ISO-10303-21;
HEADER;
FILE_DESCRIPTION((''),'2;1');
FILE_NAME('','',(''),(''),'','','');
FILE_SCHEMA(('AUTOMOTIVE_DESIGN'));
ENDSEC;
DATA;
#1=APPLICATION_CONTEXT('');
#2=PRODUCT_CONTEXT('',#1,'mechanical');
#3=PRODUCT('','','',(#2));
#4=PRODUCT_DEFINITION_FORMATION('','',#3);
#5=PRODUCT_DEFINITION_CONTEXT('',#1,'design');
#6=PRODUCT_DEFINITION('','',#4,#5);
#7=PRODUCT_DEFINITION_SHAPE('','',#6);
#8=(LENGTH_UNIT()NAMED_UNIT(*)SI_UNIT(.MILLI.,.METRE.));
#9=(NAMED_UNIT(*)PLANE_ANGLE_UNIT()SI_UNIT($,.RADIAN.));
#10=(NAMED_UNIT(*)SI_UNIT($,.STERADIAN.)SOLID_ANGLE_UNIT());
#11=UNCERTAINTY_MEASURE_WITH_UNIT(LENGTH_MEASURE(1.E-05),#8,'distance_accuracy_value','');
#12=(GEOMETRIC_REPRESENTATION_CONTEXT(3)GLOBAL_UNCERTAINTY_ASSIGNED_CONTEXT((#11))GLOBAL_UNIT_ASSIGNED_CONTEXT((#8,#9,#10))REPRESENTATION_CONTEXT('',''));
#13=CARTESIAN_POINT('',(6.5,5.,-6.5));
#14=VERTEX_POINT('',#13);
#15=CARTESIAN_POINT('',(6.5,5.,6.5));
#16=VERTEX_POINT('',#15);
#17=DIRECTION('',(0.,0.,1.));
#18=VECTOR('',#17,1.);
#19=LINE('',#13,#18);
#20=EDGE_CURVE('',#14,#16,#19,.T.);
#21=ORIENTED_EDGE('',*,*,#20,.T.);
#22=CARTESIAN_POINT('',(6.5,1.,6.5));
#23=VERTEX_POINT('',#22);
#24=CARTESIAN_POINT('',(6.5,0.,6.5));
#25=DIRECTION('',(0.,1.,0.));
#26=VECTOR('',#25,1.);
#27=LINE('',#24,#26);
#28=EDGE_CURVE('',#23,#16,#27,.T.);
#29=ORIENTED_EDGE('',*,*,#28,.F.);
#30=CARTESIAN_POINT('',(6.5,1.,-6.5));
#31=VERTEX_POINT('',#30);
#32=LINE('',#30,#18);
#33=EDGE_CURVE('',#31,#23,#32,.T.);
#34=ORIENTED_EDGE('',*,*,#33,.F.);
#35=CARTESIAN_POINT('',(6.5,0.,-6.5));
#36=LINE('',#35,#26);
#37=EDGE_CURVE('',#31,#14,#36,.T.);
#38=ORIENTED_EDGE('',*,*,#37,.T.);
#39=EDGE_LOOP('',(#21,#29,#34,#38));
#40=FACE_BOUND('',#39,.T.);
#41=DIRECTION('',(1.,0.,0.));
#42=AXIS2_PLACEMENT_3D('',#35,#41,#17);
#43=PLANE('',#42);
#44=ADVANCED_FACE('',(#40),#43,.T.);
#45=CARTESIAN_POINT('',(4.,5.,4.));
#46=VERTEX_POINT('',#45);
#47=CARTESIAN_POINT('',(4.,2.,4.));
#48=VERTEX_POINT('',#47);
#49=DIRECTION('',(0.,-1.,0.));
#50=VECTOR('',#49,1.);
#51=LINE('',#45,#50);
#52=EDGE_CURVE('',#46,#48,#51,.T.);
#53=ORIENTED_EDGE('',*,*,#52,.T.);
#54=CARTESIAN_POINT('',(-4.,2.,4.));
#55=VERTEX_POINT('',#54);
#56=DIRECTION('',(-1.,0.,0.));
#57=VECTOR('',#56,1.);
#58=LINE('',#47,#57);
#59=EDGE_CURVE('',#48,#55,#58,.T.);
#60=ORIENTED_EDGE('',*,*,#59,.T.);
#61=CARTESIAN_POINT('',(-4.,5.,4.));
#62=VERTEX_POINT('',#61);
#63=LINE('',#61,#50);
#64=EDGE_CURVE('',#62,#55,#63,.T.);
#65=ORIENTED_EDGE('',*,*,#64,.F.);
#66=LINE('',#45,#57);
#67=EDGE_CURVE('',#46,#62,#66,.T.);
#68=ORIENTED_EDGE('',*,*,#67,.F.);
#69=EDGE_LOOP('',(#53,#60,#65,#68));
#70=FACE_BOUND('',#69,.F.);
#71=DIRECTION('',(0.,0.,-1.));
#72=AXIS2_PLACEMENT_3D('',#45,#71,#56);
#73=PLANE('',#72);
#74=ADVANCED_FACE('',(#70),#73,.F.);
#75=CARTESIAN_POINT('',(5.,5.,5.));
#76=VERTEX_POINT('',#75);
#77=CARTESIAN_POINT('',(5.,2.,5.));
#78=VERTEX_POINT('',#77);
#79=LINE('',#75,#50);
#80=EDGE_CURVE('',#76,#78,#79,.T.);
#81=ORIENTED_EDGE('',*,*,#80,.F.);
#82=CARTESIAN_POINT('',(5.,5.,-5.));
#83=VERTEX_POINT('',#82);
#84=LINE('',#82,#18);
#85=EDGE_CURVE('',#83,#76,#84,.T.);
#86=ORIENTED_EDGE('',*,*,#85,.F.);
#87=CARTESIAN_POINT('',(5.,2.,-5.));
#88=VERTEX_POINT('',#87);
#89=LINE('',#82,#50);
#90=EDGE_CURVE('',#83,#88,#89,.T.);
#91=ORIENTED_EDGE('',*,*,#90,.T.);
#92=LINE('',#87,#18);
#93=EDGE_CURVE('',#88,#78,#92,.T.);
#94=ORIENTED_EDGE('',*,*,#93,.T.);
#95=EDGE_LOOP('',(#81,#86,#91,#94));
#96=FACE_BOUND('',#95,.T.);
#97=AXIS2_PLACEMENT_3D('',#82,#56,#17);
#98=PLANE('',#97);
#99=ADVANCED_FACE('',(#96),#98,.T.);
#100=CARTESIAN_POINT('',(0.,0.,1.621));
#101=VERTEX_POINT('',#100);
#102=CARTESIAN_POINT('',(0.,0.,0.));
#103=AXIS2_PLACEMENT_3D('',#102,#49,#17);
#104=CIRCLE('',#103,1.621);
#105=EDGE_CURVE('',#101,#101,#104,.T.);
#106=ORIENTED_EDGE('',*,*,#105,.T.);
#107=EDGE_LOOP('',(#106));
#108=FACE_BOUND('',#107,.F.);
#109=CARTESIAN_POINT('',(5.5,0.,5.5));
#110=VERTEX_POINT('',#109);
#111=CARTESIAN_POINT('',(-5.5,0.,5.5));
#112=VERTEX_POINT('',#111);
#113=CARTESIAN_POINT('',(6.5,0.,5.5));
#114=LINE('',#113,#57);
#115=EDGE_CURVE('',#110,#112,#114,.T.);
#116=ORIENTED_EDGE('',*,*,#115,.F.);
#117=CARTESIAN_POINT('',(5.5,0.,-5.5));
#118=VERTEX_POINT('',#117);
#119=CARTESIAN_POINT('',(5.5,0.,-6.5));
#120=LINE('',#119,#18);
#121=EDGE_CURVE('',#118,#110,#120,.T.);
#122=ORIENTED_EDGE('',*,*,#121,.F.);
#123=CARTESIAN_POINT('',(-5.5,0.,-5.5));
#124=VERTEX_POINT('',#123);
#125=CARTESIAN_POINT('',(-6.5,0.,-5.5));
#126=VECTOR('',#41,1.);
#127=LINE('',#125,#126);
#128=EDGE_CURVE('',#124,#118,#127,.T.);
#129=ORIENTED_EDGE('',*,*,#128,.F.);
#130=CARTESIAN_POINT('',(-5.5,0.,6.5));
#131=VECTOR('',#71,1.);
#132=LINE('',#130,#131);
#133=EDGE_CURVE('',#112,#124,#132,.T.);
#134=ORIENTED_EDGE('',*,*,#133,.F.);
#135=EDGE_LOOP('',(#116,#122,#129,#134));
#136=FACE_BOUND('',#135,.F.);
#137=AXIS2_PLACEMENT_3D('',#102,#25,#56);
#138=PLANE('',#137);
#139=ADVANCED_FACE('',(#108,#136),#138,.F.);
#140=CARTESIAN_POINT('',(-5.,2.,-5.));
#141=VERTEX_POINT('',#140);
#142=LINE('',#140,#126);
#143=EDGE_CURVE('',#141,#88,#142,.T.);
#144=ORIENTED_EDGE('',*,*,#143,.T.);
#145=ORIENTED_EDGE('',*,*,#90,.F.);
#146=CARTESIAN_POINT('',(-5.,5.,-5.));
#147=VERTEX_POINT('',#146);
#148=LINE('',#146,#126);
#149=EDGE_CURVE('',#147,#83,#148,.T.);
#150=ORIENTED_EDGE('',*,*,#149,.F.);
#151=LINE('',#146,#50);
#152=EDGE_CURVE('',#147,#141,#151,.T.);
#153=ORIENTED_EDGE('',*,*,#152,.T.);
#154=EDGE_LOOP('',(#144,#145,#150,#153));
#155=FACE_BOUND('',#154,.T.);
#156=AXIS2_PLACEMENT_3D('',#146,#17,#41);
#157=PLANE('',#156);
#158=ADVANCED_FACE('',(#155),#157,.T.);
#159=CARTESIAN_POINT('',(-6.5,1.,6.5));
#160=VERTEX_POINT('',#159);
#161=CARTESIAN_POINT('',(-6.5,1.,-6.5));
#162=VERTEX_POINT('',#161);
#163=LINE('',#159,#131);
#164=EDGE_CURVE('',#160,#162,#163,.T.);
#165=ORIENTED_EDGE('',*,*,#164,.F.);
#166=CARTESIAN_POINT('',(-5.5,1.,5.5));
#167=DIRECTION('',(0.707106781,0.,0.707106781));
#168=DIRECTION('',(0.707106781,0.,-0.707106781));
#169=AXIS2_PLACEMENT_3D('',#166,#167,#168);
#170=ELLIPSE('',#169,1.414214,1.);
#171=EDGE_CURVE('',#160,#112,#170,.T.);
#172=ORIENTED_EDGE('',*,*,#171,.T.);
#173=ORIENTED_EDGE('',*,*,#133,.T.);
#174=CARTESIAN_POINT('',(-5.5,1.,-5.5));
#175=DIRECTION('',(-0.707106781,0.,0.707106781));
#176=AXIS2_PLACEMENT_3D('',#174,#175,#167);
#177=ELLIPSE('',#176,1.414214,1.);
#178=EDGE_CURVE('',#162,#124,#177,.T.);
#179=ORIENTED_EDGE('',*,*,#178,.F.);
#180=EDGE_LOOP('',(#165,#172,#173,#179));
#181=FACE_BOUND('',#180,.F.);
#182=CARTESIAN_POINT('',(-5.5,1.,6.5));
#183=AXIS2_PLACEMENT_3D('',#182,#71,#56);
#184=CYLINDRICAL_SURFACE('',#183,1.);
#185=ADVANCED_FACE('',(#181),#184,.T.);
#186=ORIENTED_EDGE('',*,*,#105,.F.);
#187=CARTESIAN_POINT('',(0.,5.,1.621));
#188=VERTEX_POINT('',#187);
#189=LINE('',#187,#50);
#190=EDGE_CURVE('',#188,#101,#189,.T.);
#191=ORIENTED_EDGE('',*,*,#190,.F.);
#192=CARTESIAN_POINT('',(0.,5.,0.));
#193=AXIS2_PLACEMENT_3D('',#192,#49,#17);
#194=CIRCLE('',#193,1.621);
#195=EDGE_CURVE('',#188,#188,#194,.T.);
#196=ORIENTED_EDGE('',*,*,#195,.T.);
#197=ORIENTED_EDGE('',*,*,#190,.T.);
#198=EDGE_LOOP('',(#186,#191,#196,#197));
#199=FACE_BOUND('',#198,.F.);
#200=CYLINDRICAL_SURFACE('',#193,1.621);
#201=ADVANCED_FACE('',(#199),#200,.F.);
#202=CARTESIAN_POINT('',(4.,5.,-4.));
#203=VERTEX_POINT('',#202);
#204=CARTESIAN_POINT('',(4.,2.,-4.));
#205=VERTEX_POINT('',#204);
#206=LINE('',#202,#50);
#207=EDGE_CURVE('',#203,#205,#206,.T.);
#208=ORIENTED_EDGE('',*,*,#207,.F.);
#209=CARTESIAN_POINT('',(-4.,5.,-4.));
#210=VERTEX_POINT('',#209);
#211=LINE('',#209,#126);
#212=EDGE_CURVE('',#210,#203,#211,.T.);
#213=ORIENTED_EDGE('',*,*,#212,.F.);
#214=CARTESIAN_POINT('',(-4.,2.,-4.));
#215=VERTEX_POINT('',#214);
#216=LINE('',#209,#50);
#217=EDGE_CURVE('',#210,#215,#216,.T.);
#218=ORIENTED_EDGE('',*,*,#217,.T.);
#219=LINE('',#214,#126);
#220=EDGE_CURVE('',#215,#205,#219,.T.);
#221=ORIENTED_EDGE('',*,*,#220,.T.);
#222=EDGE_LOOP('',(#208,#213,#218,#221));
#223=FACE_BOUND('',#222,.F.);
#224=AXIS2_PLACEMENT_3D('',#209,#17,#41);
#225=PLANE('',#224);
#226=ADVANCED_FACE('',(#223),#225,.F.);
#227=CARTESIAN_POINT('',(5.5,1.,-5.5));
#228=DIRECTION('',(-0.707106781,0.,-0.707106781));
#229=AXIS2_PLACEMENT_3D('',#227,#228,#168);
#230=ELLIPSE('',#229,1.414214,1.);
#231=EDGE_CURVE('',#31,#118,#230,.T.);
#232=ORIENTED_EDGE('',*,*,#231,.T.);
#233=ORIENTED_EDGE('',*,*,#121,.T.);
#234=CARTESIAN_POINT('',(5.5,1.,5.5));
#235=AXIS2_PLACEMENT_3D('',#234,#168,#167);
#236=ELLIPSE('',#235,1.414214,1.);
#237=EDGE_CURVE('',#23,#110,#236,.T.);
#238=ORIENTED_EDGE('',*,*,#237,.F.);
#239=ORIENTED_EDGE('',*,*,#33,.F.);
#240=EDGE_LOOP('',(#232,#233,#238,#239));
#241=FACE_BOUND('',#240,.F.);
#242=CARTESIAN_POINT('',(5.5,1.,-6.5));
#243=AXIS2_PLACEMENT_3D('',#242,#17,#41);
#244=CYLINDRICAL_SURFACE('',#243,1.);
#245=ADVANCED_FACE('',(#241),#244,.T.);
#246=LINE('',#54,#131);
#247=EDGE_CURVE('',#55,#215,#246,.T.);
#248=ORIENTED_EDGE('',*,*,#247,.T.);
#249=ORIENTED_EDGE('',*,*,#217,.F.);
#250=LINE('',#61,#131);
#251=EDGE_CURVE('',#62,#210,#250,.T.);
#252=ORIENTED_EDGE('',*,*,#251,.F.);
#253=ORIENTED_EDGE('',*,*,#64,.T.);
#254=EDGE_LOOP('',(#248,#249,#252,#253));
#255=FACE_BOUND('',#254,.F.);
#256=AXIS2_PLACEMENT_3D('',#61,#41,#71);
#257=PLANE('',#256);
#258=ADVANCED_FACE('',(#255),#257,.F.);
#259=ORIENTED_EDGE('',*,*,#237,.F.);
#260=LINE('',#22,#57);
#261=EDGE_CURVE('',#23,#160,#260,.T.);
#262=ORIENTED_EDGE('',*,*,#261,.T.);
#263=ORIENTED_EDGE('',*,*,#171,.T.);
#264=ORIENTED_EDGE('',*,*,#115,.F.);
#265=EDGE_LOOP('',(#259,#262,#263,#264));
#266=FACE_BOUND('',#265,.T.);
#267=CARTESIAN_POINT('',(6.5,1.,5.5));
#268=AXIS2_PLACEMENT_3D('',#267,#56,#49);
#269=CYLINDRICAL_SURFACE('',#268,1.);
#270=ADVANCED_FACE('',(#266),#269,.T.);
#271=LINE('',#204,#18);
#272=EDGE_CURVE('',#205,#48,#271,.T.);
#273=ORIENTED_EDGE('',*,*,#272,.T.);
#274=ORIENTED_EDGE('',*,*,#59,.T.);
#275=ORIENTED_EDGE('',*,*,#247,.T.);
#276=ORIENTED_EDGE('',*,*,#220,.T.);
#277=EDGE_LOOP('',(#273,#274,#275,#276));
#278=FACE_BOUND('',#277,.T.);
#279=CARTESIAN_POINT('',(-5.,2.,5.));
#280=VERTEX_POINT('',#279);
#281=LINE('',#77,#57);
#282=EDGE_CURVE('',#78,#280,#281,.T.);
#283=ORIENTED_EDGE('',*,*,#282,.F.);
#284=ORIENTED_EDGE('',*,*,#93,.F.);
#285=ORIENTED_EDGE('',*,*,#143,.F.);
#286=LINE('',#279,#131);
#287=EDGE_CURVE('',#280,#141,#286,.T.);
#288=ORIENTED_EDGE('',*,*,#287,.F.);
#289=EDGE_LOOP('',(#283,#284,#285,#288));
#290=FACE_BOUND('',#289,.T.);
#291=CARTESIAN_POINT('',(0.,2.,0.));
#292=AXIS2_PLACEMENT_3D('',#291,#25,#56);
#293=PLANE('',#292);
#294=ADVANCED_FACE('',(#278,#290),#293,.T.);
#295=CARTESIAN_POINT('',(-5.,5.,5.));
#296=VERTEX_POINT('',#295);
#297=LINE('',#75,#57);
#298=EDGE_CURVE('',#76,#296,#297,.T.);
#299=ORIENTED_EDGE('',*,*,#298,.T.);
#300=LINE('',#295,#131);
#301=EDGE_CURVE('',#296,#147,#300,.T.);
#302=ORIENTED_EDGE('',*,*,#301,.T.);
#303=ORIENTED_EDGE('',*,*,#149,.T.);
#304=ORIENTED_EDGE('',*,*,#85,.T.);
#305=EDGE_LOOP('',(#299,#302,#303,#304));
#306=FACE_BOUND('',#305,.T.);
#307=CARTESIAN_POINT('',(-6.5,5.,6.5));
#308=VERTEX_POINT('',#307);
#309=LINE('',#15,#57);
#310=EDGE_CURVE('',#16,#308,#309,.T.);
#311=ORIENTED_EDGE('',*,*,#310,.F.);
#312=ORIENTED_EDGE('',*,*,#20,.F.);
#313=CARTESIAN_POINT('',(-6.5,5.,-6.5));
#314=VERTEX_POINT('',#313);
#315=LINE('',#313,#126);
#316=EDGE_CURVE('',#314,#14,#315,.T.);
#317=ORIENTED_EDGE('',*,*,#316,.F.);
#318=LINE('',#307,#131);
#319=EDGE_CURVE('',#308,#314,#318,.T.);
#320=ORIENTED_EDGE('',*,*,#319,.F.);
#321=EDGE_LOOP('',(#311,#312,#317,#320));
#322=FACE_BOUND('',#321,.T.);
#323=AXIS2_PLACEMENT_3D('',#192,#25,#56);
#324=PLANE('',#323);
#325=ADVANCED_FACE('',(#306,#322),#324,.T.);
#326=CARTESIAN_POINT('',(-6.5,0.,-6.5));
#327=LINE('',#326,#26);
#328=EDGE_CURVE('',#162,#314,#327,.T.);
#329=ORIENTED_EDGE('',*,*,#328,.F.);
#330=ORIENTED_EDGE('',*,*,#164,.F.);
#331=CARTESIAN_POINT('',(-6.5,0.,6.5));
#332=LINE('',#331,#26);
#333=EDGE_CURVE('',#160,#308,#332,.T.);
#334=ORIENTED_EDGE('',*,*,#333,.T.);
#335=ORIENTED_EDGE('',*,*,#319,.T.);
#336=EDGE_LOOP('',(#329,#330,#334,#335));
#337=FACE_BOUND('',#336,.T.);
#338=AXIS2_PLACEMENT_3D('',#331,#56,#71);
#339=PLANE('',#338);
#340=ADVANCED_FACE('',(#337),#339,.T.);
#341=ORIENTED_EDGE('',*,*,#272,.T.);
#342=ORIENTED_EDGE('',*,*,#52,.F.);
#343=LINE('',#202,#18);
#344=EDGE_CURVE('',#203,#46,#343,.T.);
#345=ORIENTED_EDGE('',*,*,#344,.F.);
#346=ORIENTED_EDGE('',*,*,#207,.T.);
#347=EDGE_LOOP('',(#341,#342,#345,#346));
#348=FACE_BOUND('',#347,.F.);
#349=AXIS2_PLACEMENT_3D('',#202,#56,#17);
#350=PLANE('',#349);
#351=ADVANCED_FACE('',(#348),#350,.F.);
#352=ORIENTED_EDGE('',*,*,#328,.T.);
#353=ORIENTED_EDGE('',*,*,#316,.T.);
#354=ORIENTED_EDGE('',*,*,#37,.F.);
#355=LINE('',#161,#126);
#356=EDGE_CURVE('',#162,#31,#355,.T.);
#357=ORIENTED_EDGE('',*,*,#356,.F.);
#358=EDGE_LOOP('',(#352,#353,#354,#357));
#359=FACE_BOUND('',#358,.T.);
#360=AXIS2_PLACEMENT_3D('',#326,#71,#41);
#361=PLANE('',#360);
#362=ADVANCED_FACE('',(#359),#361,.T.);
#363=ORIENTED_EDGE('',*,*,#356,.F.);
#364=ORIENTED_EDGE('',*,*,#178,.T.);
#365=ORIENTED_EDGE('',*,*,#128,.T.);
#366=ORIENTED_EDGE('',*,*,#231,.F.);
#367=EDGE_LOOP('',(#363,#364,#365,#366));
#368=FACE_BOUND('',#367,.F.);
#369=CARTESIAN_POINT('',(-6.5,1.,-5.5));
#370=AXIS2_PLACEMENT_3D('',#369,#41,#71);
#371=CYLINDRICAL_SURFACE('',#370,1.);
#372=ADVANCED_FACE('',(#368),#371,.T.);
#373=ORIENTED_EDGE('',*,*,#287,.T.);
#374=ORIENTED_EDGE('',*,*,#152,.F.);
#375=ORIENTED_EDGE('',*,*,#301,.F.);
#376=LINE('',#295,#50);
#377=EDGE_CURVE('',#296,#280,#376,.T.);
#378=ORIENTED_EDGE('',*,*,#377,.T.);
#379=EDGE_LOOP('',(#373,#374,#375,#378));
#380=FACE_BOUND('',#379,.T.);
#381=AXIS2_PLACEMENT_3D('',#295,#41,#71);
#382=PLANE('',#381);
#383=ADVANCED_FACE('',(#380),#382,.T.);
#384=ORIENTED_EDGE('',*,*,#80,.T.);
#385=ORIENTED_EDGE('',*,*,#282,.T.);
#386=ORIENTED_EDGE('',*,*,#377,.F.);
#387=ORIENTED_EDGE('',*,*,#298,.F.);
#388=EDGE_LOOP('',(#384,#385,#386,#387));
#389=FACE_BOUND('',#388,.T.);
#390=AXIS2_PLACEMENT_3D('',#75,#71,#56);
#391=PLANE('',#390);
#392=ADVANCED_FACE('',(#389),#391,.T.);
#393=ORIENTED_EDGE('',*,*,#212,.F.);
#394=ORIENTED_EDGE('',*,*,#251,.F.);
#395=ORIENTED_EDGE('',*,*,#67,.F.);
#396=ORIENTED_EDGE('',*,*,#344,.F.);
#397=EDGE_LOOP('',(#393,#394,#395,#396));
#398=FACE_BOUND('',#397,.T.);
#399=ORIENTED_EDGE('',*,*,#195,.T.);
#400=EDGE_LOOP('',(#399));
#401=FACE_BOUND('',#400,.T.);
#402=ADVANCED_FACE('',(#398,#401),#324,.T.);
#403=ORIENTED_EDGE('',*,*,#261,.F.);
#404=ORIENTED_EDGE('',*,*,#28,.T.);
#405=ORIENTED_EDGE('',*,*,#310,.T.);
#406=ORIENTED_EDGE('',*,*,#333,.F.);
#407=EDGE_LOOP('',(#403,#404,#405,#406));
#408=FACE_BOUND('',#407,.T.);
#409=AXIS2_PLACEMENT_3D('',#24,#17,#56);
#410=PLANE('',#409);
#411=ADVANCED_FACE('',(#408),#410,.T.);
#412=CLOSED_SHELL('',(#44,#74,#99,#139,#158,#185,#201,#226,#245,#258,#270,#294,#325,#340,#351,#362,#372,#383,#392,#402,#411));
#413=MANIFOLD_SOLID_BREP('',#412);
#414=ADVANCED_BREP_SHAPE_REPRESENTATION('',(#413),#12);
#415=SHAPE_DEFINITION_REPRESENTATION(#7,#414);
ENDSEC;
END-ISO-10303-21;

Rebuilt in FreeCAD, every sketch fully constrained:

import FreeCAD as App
import Part
import Sketcher
Q = App.Units.Quantity


def edges_at(feature, points):
    """Names of the edges that pass closest to the given points."""
    edges = feature.Shape.Edges
    near = lambda p: min(range(len(edges)), key=lambda i: edges[i].distToShape(Part.Vertex(*p))[0])
    return sorted({f"Edge{near(p) + 1}" for p in points})


def add_polygon(sketch, points):
    """Adds a closed chain of lines whose ends are joined by coincident constraints."""
    first, n = sketch.GeometryCount, len(points)
    for a, b in zip(points, points[1:] + points[:1]):
        sketch.addGeometry(Part.LineSegment(App.Vector(*a, 0), App.Vector(*b, 0)), False)
    for i in range(n):
        sketch.addConstraint(Sketcher.Constraint("Coincident", first + i, 2, first + (i + 1) % n, 1))

doc = App.newDocument("Part")
body = doc.addObject("PartDesign::Body", "Body")

# Sketch on XZ plane
sketch1 = body.newObject("Sketcher::SketchObject", "Sketch")
sketch1.AttachmentSupport = (doc.getObject("XZ_Plane"), [""])
sketch1.MapMode = "FlatFace"
add_polygon(sketch1, [(6, -6), (-6, -6), (-6, 6), (6, 6)])  # lines 0-3
sketch1.addConstraint([
    Sketcher.Constraint("Horizontal", 0),
    Sketcher.Constraint("Vertical", 1),
    Sketcher.Constraint("Horizontal", 2),
    Sketcher.Constraint("Vertical", 3),
    Sketcher.Constraint("Symmetric", 0, 2, 2, 2, -1, 1),
    Sketcher.Constraint("Equal", 2, 1),
    Sketcher.Constraint("DistanceX", 0, 2, 0, 1, Q("13 mm")),
])
pad1 = body.newObject("PartDesign::Pad", "Pad")
pad1.Profile = sketch1
pad1.Length = 5
pad1.Reversed = True

# Sketch on XZ plane
sketch2 = body.newObject("Sketcher::SketchObject", "Sketch001")
sketch2.AttachmentSupport = (doc.getObject("XZ_Plane"), [""])
sketch2.MapMode = "FlatFace"
sketch2.AttachmentOffset = App.Placement(App.Vector(0, 0, -5), App.Rotation())
add_polygon(sketch2, [(5, -5), (-5, -5), (-5, 5), (5, 5)])  # lines 0-3
add_polygon(sketch2, [(-4, 4), (-4, -4), (4, -4), (4, 4)])  # lines 4-7
sketch2.addConstraint([
    Sketcher.Constraint("Horizontal", 0),
    Sketcher.Constraint("Vertical", 1),
    Sketcher.Constraint("Horizontal", 2),
    Sketcher.Constraint("Vertical", 3),
    Sketcher.Constraint("Vertical", 4),
    Sketcher.Constraint("Horizontal", 5),
    Sketcher.Constraint("Vertical", 6),
    Sketcher.Constraint("Horizontal", 7),
    Sketcher.Constraint("Symmetric", 0, 2, 2, 2, -1, 1),
    Sketcher.Constraint("Symmetric", 4, 2, 6, 2, -1, 1),
    Sketcher.Constraint("Equal", 2, 1),
    Sketcher.Constraint("Equal", 7, 4),
    Sketcher.Constraint("DistanceX", 0, 2, 0, 1, Q("10 mm")),
    Sketcher.Constraint("DistanceX", 5, 1, 5, 2, Q("8 mm")),
])
pocket1 = body.newObject("PartDesign::Pocket", "Pocket")
pocket1.Profile = sketch2
pocket1.Length = 3
pocket1.Reversed = True

# Sketch on XZ plane
sketch3 = body.newObject("Sketcher::SketchObject", "Sketch002")
sketch3.AttachmentSupport = (doc.getObject("XZ_Plane"), [""])
sketch3.MapMode = "FlatFace"
sketch3.AttachmentOffset = App.Placement(App.Vector(0, 0, -5), App.Rotation())
sketch3.addGeometry(Part.Circle(App.Vector(0, 0, 0), App.Vector(0, 0, 1), 1.6), False)
sketch3.addConstraint([
    Sketcher.Constraint("Coincident", 0, 3, -1, 1),
    Sketcher.Constraint("Diameter", 0, Q("3.242 mm")),
])
doc.recompute()
hole = body.newObject("PartDesign::Hole", "Hole")
hole.Profile = sketch3
hole.ThreadType = "None"
hole.Diameter = 3.242
hole.DepthType = "ThroughAll"
hole.Reversed = True
doc.recompute()

fillet = body.newObject("PartDesign::Fillet", "Fillet")
fillet.Base = (hole, edges_at(hole, [
    (0, 0, -6.5),
    (6.5, 0, 0),
    (-6.5, 0, 0),
    (0, 0, 6.5),
]))
fillet.Radius = 1

doc.recompute()
